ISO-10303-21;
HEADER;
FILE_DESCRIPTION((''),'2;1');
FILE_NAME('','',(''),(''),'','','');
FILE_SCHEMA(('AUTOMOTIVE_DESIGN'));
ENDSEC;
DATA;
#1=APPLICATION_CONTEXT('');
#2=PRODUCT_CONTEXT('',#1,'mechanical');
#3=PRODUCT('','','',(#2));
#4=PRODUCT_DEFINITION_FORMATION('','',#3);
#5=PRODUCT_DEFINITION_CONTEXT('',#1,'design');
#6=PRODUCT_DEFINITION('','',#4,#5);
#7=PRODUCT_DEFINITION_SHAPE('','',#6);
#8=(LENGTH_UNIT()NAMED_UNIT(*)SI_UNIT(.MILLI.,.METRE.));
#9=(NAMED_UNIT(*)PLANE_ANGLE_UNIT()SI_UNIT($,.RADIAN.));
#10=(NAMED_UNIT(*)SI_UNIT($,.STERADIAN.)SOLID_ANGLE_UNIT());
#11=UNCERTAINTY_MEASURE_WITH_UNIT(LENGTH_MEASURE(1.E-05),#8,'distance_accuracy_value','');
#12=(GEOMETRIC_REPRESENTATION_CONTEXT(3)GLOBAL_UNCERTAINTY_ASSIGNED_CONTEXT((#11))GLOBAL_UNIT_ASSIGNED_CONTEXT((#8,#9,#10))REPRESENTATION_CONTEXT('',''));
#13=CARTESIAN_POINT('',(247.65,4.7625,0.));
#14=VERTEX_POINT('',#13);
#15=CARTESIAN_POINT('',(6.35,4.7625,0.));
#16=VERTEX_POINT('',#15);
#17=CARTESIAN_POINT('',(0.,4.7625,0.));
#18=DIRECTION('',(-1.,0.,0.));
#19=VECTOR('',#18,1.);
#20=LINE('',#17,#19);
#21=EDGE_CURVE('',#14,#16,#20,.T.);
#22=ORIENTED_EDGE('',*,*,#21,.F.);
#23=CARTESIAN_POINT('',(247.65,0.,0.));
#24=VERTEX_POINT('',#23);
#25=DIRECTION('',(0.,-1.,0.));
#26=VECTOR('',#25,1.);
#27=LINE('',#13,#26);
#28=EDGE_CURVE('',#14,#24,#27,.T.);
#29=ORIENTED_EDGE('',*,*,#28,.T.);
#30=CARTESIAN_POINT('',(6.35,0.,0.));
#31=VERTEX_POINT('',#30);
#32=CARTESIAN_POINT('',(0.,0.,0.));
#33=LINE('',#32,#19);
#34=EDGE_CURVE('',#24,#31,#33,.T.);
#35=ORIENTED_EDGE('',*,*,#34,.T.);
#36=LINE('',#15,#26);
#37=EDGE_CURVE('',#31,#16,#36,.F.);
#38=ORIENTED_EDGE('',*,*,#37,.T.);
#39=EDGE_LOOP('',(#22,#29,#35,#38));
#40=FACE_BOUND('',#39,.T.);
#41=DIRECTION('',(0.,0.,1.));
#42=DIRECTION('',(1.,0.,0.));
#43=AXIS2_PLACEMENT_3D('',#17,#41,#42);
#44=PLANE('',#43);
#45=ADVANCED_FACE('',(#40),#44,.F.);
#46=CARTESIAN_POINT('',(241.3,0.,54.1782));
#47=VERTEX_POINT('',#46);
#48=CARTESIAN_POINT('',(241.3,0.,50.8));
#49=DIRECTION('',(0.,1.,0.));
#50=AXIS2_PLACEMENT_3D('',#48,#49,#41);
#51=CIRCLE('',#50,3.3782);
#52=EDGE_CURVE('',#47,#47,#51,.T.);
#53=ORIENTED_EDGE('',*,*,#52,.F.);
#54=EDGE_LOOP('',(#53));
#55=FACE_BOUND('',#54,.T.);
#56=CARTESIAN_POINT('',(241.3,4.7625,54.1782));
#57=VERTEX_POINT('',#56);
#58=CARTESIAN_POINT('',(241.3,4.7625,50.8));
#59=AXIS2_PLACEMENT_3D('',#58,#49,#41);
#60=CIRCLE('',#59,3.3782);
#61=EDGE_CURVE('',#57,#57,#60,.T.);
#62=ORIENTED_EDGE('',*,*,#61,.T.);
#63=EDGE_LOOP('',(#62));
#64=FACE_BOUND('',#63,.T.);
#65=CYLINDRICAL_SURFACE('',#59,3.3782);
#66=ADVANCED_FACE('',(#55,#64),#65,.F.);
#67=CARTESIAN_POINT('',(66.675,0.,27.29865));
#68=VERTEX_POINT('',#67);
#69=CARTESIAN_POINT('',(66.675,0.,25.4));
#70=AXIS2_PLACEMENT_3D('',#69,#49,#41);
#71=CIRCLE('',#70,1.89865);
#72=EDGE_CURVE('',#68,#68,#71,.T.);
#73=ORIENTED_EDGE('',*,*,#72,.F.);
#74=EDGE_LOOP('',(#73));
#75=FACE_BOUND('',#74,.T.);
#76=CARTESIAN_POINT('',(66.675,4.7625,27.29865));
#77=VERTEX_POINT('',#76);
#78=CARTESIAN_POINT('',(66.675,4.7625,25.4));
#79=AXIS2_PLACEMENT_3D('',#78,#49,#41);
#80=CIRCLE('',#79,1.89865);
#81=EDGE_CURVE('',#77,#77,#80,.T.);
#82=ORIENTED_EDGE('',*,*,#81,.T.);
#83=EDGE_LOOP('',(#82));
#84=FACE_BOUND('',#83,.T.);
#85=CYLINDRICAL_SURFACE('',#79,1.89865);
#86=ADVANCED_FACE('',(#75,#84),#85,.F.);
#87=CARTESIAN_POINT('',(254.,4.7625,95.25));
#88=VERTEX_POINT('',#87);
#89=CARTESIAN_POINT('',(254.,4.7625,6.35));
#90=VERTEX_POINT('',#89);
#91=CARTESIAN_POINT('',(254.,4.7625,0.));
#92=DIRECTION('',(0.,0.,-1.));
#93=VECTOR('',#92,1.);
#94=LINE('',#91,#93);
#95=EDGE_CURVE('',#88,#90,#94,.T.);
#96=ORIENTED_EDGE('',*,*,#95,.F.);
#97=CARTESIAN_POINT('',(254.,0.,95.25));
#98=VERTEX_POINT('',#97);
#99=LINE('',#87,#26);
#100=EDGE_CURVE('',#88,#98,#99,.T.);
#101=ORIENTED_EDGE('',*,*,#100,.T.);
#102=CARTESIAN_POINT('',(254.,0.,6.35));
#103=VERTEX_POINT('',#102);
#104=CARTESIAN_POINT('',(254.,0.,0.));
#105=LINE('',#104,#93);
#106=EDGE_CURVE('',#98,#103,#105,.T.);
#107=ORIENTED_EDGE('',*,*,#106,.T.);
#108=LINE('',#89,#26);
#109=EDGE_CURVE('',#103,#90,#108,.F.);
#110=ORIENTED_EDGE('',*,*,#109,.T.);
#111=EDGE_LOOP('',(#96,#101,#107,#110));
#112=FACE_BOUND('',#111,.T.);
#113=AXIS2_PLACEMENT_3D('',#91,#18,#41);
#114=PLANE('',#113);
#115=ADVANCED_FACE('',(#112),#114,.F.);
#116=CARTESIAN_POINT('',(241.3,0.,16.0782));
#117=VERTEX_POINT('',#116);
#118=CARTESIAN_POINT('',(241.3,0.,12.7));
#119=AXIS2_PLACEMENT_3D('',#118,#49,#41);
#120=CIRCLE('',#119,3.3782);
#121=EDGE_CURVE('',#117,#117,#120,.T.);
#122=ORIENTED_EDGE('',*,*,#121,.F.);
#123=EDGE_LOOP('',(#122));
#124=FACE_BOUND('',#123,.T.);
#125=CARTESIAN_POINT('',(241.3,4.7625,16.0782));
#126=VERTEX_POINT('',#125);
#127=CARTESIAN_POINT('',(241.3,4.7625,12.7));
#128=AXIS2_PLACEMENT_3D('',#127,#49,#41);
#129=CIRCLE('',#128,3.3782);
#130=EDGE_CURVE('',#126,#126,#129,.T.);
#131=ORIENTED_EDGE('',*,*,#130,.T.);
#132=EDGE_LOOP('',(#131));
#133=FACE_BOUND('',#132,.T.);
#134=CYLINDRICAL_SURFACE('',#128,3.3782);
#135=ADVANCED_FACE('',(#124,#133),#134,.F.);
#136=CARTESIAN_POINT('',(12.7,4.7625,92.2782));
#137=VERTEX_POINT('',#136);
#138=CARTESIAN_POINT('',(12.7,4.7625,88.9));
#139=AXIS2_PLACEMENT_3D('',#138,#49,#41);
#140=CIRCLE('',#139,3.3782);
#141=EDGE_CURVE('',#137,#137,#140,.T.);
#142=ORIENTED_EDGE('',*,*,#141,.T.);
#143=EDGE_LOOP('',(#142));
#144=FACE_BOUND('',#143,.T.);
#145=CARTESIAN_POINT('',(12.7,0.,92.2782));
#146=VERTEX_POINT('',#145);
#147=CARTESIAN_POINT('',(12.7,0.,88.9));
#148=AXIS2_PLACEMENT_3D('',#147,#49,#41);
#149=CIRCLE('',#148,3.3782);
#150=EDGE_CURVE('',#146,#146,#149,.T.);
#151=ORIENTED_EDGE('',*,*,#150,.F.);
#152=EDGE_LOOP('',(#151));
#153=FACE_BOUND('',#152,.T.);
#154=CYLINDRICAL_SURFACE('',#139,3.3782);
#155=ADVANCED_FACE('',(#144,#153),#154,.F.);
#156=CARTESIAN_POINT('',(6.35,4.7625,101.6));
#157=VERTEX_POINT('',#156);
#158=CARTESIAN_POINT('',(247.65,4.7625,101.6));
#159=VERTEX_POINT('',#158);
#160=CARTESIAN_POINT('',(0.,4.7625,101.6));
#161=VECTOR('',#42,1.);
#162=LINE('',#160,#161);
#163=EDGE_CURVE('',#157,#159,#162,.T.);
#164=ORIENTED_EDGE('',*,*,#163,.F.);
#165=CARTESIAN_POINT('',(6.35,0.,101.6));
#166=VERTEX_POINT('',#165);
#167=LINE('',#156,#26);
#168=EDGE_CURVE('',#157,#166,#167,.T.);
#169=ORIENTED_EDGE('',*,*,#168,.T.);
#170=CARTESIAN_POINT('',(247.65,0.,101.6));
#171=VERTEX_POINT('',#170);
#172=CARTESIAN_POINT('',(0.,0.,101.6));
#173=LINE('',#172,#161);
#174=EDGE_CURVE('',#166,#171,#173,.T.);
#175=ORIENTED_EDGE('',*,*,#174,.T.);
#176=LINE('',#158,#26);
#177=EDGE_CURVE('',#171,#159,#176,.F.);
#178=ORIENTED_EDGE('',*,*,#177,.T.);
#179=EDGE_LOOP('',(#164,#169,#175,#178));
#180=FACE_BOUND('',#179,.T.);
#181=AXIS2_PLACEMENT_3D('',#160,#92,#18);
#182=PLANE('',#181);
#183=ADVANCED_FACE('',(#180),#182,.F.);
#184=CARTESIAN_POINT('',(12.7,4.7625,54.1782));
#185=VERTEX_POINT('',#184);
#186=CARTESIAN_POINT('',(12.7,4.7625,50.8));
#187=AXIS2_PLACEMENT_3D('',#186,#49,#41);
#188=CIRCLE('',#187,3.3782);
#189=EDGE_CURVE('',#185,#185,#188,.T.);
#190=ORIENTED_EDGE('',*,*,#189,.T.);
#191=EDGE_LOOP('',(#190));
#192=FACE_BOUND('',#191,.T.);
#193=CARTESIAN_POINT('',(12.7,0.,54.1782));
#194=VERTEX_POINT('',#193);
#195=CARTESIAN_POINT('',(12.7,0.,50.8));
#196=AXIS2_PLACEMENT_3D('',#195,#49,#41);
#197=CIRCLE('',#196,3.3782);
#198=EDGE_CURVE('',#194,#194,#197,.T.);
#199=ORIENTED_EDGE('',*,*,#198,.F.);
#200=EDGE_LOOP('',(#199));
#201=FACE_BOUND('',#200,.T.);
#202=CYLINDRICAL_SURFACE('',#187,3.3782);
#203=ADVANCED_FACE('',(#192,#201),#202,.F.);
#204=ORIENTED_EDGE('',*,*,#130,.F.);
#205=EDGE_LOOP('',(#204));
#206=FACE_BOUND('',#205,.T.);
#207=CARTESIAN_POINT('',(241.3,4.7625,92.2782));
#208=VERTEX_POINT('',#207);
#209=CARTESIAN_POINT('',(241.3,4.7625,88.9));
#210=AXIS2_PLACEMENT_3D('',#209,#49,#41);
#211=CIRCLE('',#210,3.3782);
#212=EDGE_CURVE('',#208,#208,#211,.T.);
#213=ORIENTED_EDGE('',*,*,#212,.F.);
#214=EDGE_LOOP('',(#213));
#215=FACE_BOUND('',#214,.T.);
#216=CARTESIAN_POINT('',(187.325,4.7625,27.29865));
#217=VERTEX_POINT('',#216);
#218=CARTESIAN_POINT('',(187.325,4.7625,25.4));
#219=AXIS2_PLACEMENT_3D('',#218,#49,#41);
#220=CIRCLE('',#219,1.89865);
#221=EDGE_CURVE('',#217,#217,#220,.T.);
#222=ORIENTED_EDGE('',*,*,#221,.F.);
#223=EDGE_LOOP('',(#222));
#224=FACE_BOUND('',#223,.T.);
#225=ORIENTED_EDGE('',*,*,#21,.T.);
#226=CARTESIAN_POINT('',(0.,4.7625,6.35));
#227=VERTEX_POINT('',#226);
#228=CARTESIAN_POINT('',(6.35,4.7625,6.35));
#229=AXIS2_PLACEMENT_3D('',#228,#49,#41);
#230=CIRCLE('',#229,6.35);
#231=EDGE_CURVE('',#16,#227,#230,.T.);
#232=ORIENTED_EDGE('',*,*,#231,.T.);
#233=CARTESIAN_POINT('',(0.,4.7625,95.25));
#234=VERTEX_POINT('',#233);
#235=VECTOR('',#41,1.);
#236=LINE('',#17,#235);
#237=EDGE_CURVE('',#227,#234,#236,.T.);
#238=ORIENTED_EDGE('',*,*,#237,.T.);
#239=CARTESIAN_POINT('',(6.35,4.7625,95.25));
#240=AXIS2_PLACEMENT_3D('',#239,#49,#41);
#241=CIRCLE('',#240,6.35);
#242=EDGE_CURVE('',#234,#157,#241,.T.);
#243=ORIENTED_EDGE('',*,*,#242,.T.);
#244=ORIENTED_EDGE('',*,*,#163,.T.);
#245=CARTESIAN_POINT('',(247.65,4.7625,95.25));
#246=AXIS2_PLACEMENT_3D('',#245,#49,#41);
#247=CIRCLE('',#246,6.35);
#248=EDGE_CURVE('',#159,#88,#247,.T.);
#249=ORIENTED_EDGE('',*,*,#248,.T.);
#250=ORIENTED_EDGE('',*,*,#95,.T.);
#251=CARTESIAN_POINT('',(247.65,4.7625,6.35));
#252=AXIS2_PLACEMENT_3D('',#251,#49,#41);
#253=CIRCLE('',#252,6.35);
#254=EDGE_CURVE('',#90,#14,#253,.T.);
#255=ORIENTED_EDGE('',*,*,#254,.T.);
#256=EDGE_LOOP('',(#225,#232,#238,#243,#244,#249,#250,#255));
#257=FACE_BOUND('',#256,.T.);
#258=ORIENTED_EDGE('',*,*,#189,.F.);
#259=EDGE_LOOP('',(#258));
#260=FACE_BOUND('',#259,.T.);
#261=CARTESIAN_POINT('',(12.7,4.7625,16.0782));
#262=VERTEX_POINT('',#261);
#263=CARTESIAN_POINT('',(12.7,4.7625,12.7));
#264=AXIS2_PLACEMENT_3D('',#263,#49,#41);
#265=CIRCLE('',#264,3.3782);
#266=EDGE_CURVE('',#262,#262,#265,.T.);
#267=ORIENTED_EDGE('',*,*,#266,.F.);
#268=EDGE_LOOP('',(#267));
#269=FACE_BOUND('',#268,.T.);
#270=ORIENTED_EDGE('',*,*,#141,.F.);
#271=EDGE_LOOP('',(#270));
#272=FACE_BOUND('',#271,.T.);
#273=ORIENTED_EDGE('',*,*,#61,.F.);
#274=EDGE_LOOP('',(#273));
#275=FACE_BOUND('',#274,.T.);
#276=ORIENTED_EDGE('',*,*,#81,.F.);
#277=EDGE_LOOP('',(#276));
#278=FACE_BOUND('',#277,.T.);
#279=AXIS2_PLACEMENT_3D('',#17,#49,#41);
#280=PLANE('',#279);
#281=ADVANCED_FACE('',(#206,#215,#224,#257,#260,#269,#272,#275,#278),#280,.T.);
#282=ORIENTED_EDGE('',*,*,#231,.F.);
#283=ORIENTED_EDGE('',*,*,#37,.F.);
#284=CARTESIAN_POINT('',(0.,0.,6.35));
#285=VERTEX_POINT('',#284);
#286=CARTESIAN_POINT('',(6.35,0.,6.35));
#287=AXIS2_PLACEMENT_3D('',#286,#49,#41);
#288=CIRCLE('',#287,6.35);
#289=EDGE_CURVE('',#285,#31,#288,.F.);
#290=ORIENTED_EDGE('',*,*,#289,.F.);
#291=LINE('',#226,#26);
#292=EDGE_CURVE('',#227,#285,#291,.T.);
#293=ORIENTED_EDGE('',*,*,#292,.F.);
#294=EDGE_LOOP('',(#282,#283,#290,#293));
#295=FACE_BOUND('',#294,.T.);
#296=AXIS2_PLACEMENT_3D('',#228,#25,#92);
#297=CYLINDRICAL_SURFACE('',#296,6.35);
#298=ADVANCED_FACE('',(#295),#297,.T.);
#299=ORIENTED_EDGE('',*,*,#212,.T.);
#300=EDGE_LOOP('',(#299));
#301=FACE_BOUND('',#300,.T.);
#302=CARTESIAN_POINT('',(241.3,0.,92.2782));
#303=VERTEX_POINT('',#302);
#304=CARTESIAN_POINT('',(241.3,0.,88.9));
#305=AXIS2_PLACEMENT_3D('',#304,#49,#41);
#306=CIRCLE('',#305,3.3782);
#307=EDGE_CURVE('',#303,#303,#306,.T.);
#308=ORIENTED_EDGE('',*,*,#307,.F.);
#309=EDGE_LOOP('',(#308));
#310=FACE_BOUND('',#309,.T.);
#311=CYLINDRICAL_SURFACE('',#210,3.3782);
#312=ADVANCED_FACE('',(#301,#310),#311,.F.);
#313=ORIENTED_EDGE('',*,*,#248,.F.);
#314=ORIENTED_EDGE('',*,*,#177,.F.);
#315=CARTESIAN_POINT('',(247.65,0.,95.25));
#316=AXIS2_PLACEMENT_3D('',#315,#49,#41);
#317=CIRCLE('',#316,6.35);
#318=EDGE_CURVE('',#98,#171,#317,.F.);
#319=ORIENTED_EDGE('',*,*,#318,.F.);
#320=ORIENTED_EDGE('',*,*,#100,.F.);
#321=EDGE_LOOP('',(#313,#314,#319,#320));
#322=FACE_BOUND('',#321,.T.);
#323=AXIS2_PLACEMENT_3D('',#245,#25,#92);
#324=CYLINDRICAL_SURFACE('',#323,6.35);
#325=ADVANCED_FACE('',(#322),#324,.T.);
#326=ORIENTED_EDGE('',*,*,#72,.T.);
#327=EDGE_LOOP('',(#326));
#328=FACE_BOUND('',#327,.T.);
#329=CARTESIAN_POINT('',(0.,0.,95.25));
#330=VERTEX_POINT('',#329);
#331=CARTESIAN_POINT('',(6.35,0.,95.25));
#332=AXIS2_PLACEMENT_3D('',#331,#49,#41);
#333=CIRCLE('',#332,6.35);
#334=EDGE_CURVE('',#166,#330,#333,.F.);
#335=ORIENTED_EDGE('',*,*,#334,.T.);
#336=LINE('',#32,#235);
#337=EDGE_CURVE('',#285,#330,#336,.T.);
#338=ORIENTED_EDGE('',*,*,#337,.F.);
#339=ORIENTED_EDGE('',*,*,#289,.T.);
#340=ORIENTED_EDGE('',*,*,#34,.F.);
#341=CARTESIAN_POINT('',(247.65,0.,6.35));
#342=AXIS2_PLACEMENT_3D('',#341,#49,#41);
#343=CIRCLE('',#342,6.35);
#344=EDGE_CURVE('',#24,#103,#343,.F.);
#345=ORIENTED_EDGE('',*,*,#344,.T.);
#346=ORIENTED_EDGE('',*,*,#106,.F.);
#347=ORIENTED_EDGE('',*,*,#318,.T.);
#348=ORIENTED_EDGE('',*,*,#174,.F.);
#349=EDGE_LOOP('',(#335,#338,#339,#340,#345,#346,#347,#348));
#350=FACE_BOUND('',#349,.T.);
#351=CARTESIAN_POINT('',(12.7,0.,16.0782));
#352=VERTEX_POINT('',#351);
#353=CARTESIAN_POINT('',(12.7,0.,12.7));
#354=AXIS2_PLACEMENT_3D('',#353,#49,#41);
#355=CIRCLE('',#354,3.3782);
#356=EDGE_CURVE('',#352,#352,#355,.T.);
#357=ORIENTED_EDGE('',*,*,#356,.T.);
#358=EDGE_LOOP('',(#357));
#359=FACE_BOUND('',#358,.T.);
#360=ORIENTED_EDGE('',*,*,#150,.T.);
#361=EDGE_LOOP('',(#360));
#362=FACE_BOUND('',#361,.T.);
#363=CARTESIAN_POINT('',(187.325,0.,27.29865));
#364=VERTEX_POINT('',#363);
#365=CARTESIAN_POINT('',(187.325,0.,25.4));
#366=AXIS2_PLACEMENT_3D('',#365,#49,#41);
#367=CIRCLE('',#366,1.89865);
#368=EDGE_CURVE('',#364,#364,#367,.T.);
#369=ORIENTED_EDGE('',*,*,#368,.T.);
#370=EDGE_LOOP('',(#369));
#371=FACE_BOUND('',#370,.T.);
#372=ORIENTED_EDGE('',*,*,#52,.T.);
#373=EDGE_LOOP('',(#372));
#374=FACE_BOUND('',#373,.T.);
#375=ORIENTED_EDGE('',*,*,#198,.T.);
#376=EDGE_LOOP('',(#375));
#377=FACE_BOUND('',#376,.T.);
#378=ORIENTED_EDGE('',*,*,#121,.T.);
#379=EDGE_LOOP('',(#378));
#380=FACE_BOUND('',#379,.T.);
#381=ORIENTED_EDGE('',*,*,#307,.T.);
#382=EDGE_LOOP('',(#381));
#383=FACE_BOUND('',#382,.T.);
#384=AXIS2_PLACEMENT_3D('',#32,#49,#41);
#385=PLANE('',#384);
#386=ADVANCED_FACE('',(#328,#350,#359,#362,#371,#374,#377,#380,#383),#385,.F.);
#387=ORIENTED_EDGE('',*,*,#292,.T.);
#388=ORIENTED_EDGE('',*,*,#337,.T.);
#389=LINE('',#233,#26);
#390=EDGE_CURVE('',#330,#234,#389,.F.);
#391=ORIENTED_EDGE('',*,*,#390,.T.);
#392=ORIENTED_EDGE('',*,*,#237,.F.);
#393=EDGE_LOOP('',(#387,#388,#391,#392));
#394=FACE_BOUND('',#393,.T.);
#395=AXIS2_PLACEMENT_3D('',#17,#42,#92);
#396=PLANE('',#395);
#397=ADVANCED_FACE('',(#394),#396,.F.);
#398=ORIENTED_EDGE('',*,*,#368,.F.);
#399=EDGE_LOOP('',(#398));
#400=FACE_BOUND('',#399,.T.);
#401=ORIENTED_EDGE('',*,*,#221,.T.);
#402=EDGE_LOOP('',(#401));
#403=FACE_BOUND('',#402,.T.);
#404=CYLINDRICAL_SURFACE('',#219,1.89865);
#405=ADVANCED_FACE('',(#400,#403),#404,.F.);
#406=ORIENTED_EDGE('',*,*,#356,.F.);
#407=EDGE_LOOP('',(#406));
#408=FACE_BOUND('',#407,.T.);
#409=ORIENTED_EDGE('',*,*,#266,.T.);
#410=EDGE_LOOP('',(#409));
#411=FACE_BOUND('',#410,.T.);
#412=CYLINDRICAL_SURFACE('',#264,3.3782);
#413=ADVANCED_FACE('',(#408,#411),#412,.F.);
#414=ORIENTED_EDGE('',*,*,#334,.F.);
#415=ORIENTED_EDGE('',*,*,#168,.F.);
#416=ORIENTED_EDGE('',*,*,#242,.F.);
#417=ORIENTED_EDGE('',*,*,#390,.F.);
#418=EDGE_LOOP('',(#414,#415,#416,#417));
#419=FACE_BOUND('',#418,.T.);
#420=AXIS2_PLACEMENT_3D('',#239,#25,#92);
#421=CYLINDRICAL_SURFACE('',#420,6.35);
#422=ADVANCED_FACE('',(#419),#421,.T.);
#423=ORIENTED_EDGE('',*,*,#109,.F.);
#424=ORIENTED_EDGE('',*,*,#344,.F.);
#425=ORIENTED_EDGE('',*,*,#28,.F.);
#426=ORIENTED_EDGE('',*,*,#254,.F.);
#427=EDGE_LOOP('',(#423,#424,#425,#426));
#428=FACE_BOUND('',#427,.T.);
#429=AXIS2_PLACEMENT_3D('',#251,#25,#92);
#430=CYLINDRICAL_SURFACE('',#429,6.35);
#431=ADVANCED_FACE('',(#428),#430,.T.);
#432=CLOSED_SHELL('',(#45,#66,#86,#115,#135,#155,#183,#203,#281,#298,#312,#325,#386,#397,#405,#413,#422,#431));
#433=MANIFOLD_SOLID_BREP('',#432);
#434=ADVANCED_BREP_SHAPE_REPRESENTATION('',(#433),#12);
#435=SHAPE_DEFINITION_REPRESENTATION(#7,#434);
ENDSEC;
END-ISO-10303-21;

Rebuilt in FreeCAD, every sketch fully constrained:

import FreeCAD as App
import Part
import Sketcher
from FreeCAD import Vector
Q = App.Units.Quantity


def edges_at(feature, points):
    """Names of the edges that pass closest to the given points."""
    edges = feature.Shape.Edges
    near = lambda p: min(range(len(edges)), key=lambda i: edges[i].distToShape(Part.Vertex(*p))[0])
    return sorted({f"Edge{near(p) + 1}" for p in points})


def add_polygon(sketch, points):
    """Adds a closed chain of lines whose ends are joined by coincident constraints."""
    first, n = sketch.GeometryCount, len(points)
    for a, b in zip(points, points[1:] + points[:1]):
        sketch.addGeometry(Part.LineSegment(App.Vector(*a, 0), App.Vector(*b, 0)), False)
    for i in range(n):
        sketch.addConstraint(Sketcher.Constraint("Coincident", first + i, 2, first + (i + 1) % n, 1))

doc = App.newDocument("Part")
body = doc.addObject("PartDesign::Body", "Body")

# Sketch on XZ plane
sketch1 = body.newObject("Sketcher::SketchObject", "Sketch")
sketch1.AttachmentSupport = (doc.getObject("XZ_Plane"), [""])
sketch1.MapMode = "FlatFace"
add_polygon(sketch1, [(0, 0), (0, 102), (254, 102), (254, 0)])  # lines 0-3
sketch1.addConstraint(Sketcher.Constraint("Vertical", 0))
sketch1.addConstraint(Sketcher.Constraint("Horizontal", 1))
sketch1.addConstraint(Sketcher.Constraint("Vertical", 2))
sketch1.addConstraint(Sketcher.Constraint("Horizontal", 3))
sketch1.addConstraint(Sketcher.Constraint("Coincident", 3, 2, -1, 1))
sketch1.addConstraint(Sketcher.Constraint("DistanceX", 1, 1, 1, 2, Q("10 in")))
sketch1.addConstraint(Sketcher.Constraint("DistanceY", 0, 1, 0, 2, Q("4 in")))
pad1 = body.newObject("PartDesign::Pad", "Pad")
pad1.Profile = sketch1
pad1.Length = Q("0.1875 in")
pad1.Reversed = True
doc.recompute()

fillet = body.newObject("PartDesign::Fillet", "Fillet")
fillet.Base = (pad1, edges_at(pad1, [
    (0, 2.381, 0),
    (254, 2.381, 0),
    (254, 2.381, 101.6),
    (0, 2.381, 101.6),
]))
fillet.Radius = Q("0.25 in")

# Sketch on XZ plane
sketch2 = body.newObject("Sketcher::SketchObject", "Sketch001")
sketch2.AttachmentSupport = (doc.getObject("XZ_Plane"), [""])
sketch2.MapMode = "FlatFace"
sketch2.AttachmentOffset = App.Placement(Vector(0, 0, -0.1875 * 25.4), App.Rotation())
sketch2.addGeometry(Part.Circle(Vector(66.7, 25.4, 0), Vector(0, 0, 1), 1.9), False)
sketch2.addGeometry(Part.Circle(Vector(187.3, 25.4, 0), Vector(0, 0, 1), 1.9), False)
sketch2.addConstraint(Sketcher.Constraint("Equal", 0, 1))
sketch2.addConstraint(Sketcher.Constraint("Horizontal", 0, 3, 1, 3))
sketch2.addConstraint(Sketcher.Constraint("DistanceY", -1, 1, 0, 3, Q("1 in")))
sketch2.addConstraint(Sketcher.Constraint("Diameter", 0, Q("0.1495 in")))
sketch2.addConstraint(Sketcher.Constraint("DistanceX", 0, 3, 1, 3, Q("4.75 in")))
sketch2.addConstraint(Sketcher.Constraint("DistanceX", -1, 1, 0, 3, Q("2.625 in")))
doc.recompute()
hole = body.newObject("PartDesign::Hole", "Hole")
hole.Profile = sketch2
hole.ThreadType = "None"
hole.Diameter = Q("0.1495 in")
hole.DepthType = "ThroughAll"
hole.Reversed = True

# Sketch on XZ plane
sketch3 = body.newObject("Sketcher::SketchObject", "Sketch002")
sketch3.AttachmentSupport = (doc.getObject("XZ_Plane"), [""])
sketch3.MapMode = "FlatFace"
sketch3.AttachmentOffset = App.Placement(Vector(0, 0, -0.1875 * 25.4), App.Rotation())
sketch3.addGeometry(Part.Circle(Vector(12.7, 12.7, 0), Vector(0, 0, 1), 3.4), False)
sketch3.addGeometry(Part.Circle(Vector(12.7, 88.9, 0), Vector(0, 0, 1), 3.4), False)
sketch3.addGeometry(Part.Circle(Vector(241.3, 88.9, 0), Vector(0, 0, 1), 3.4), False)
sketch3.addGeometry(Part.Circle(Vector(241.3, 12.7, 0), Vector(0, 0, 1), 3.4), False)
sketch3.addGeometry(Part.Circle(Vector(12.7, 50.8, 0), Vector(0, 0, 1), 3.4), False)
sketch3.addGeometry(Part.Circle(Vector(241.3, 50.8, 0), Vector(0, 0, 1), 3.4), False)
sketch3.addConstraint(Sketcher.Constraint("Equal", 0, 1))
sketch3.addConstraint(Sketcher.Constraint("Equal", 1, 2))
sketch3.addConstraint(Sketcher.Constraint("Equal", 2, 3))
sketch3.addConstraint(Sketcher.Constraint("Equal", 3, 4))
sketch3.addConstraint(Sketcher.Constraint("Equal", 4, 5))
sketch3.addConstraint(Sketcher.Constraint("Horizontal", 1, 3, 2, 3))
sketch3.addConstraint(Sketcher.Constraint("Horizontal", 0, 3, 3, 3))
sketch3.addConstraint(Sketcher.Constraint("Horizontal", 4, 3, 5, 3))
sketch3.addConstraint(Sketcher.Constraint("Vertical", 0, 3, 1, 3))
sketch3.addConstraint(Sketcher.Constraint("Vertical", 2, 3, 3, 3))
sketch3.addConstraint(Sketcher.Constraint("Vertical", 1, 3, 4, 3))
sketch3.addConstraint(Sketcher.Constraint("Vertical", 3, 3, 5, 3))
sketch3.addConstraint(Sketcher.Constraint("Diameter", 0, Q("0.266 in")))
sketch3.addConstraint(Sketcher.Constraint("DistanceY", -1, 1, 4, 3, Q("2 in")))
sketch3.addConstraint(Sketcher.Constraint("DistanceY", 0, 3, 1, 3, Q("3 in")))
sketch3.addConstraint(Sketcher.Constraint("DistanceX", 1, 3, 2, 3, Q("9 in")))
sketch3.addConstraint(Sketcher.Constraint("DistanceX", -1, 1, 0, 3, Q("0.5 in")))
sketch3.addConstraint(Sketcher.Constraint("DistanceY", -1, 1, 0, 3, Q("0.5 in")))
doc.recompute()
hole2 = body.newObject("PartDesign::Hole", "Hole001")
hole2.Profile = sketch3
hole2.ThreadType = "None"
hole2.Diameter = Q("0.266 in")
hole2.DepthType = "ThroughAll"
hole2.Reversed = True

doc.recompute()
